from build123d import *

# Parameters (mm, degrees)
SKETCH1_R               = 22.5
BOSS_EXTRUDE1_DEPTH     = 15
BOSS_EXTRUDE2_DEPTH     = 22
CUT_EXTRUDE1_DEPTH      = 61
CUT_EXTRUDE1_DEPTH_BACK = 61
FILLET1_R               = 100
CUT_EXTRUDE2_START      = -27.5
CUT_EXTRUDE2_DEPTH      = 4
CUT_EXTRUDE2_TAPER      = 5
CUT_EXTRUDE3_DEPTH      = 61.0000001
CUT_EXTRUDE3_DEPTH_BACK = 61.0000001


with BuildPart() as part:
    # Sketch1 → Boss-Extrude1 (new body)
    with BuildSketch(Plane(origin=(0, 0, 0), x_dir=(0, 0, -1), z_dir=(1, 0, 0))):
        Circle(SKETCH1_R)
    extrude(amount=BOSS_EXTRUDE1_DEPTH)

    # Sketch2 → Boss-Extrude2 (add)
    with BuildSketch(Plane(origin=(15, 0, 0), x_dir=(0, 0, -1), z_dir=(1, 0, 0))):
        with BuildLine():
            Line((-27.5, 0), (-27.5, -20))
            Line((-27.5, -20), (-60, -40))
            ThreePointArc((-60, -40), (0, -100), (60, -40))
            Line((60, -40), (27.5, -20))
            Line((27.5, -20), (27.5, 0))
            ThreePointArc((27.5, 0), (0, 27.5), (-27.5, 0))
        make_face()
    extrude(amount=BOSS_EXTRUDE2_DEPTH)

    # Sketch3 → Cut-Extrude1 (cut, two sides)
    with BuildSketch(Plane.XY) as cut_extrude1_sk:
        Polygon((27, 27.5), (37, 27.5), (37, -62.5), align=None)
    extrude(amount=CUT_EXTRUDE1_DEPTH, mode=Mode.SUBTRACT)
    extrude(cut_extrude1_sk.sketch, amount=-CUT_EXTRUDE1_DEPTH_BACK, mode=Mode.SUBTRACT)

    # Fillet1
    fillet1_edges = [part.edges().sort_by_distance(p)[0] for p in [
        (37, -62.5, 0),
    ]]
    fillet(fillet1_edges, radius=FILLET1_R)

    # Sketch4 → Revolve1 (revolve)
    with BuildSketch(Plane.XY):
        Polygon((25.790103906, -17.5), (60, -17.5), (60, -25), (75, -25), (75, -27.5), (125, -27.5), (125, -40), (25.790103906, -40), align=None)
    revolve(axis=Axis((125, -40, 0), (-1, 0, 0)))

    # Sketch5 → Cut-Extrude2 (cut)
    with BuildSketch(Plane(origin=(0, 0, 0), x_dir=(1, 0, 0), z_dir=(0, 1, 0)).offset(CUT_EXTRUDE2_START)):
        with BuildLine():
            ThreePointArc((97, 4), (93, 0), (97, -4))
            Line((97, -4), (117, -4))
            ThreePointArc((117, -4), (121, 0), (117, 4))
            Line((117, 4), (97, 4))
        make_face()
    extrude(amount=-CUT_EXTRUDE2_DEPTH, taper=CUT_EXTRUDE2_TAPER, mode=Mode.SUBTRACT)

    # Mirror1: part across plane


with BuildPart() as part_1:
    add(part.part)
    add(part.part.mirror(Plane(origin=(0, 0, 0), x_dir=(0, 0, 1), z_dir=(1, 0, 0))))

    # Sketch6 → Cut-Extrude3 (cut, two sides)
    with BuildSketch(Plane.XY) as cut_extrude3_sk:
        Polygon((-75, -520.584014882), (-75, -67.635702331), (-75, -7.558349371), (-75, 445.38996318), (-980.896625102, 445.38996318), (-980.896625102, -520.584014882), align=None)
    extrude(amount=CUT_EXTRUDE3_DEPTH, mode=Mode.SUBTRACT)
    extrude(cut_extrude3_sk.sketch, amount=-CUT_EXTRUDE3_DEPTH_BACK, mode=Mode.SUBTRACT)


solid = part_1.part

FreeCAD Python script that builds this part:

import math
import FreeCAD as App
import Part
import Sketcher
from FreeCAD import Vector


def edges_at(feature, points):
    """Names of the edges that pass closest to the given points."""
    edges = feature.Shape.Edges
    near = lambda p: min(range(len(edges)), key=lambda i: edges[i].distToShape(Part.Vertex(*p))[0])
    return sorted({f"Edge{near(p) + 1}" for p in points})


def add_polygon(sketch, points):
    """Adds a closed chain of lines whose ends are joined by coincident constraints."""
    first, n = sketch.GeometryCount, len(points)
    for a, b in zip(points, points[1:] + points[:1]):
        sketch.addGeometry(Part.LineSegment(App.Vector(*a, 0), App.Vector(*b, 0)), False)
    for i in range(n):
        sketch.addConstraint(Sketcher.Constraint("Coincident", first + i, 2, first + (i + 1) % n, 1))

doc = App.newDocument("Part")
params = doc.addObject("Spreadsheet::Sheet", "Params")
for row, (alias, value) in enumerate([
    ("sketch1_diameter", "45 mm"),
    ("pad1_length", "15 mm"),
    ("sketch2_radius", "60 mm"),
    ("sketch2_radius2", "27.5 mm"),
    ("sketch2_width", "20 mm"),
    ("pad2_length", "22 mm"),
    ("sketch3_width", "10 mm"),
    ("sketch3_height", "90 mm"),
    ("fillet_radius", "100 mm"),
    ("sketch4_width", "50 mm"),
    ("sketch4_width2", "15 mm"),
    ("sketch4_height", "22.5 mm"),
    ("sketch4_height2", "12.5 mm"),
    ("sketch4_height3", "2.5 mm"),
    ("revolution_angle", "360 deg"),
    ("sketch5_radius", "4 mm"),
    ("sketch5_width", "20 mm"),
    ("pocket2_length", "4 mm"),
    ("pocket2_taper", "-5 deg"),
], start=1):
    params.set(f"A{row}", alias)
    params.set(f"B{row}", "=" + value)
    params.setAlias(f"B{row}", alias)

body = doc.addObject("PartDesign::Body", "Body")

# Sketch on YZ plane
sketch1 = body.newObject("Sketcher::SketchObject", "Sketch")
sketch1.AttachmentSupport = (doc.getObject("YZ_Plane"), [""])
sketch1.MapMode = "FlatFace"
sketch1.addGeometry(Part.Circle(Vector(0, 0, 0), Vector(0, 0, 1), 22.5), False)
sketch1.addConstraint(Sketcher.Constraint("Coincident", 0, 3, -1, 1))
sketch1.addConstraint(Sketcher.Constraint("Diameter", 0, 45.0))
sketch1.setExpression("Constraints[1]", "Params.sketch1_diameter")
pad1 = body.newObject("PartDesign::Pad", "Pad")
pad1.Profile = sketch1
pad1.setExpression("Length", "Params.pad1_length")

# Sketch on YZ plane
sketch2 = body.newObject("Sketcher::SketchObject", "Sketch001")
sketch2.AttachmentSupport = (doc.getObject("YZ_Plane"), [""])
sketch2.MapMode = "FlatFace"
sketch2.AttachmentOffset = App.Placement(Vector(0, 0, 15), App.Rotation())
sketch2.addGeometry(Part.LineSegment(Vector(0, 27.5, 0), Vector(-20, 27.5, 0)), False)
sketch2.addGeometry(Part.LineSegment(Vector(-20, 27.5, 0), Vector(-40, 60, 0)), False)
sketch2.addGeometry(Part.ArcOfCircle(Part.Circle(Vector(-40, 0, 0), Vector(0, 0, 1), 60), math.radians(90), math.radians(270)), False)
sketch2.addGeometry(Part.LineSegment(Vector(-40, -60, 0), Vector(-20, -27.5, 0)), False)
sketch2.addGeometry(Part.LineSegment(Vector(-20, -27.5, 0), Vector(0, -27.5, 0)), False)
sketch2.addGeometry(Part.ArcOfCircle(Part.Circle(Vector(0, 0, 0), Vector(0, 0, 1), 27.5), math.radians(-90), math.radians(90)), False)
sketch2.addConstraint(Sketcher.Constraint("Coincident", 0, 2, 1, 1))
sketch2.addConstraint(Sketcher.Constraint("Coincident", 1, 2, 2, 1))
sketch2.addConstraint(Sketcher.Constraint("Coincident", 2, 2, 3, 1))
sketch2.addConstraint(Sketcher.Constraint("Coincident", 3, 2, 4, 1))
sketch2.addConstraint(Sketcher.Constraint("Tangent", 4, 2, 5, 1))
sketch2.addConstraint(Sketcher.Constraint("Tangent", 5, 2, 0, 1))
sketch2.addConstraint(Sketcher.Constraint("Horizontal", 0))
sketch2.addConstraint(Sketcher.Constraint("Horizontal", 4))
sketch2.addConstraint(Sketcher.Constraint("Coincident", 5, 3, -1, 1))
sketch2.addConstraint(Sketcher.Constraint("Symmetric", 1, 2, 2, 2, -1))
sketch2.addConstraint(Sketcher.Constraint("Vertical", 2, 3, 1, 2))
sketch2.addConstraint(Sketcher.Constraint("Vertical", 0, 2, 3, 2))
sketch2.addConstraint(Sketcher.Constraint("Radius", 2, 60.0))
sketch2.addConstraint(Sketcher.Constraint("Radius", 5, 27.5))
sketch2.addConstraint(Sketcher.Constraint("DistanceX", 0, 2, 0, 1, 20.0))
sketch2.addConstraint(Sketcher.Constraint("DistanceX", 2, 3, -1, 1, 40.0))
sketch2.setExpression("Constraints[12]", "Params.sketch2_radius")
sketch2.setExpression("Constraints[13]", "Params.sketch2_radius2")
sketch2.setExpression("Constraints[14]", "Params.sketch2_width")
pad2 = body.newObject("PartDesign::Pad", "Pad001")
pad2.Profile = sketch2
pad2.setExpression("Length", "Params.pad2_length")

# Sketch on XY plane
sketch3 = body.newObject("Sketcher::SketchObject", "Sketch002")
sketch3.AttachmentSupport = (doc.getObject("XY_Plane"), [""])
sketch3.MapMode = "FlatFace"
add_polygon(sketch3, [(37, 27.5), (27, 27.5), (37, -62.5)])  # lines 0-2
sketch3.addConstraint(Sketcher.Constraint("Horizontal", 0))
sketch3.addConstraint(Sketcher.Constraint("Vertical", 2))
sketch3.addConstraint(Sketcher.Constraint("DistanceX", 0, 2, 0, 1, 10.0))
sketch3.addConstraint(Sketcher.Constraint("DistanceY", 2, 1, 2, 2, 90.0))
sketch3.addConstraint(Sketcher.Constraint("DistanceX", -1, 1, 0, 2, 27.0))
sketch3.addConstraint(Sketcher.Constraint("DistanceY", -1, 1, 0, 2, 27.5))
sketch3.setExpression("Constraints[5]", "Params.sketch3_width")
sketch3.setExpression("Constraints[6]", "Params.sketch3_height")
pocket1 = body.newObject("PartDesign::Pocket", "Pocket")
pocket1.Profile = sketch3
pocket1.Type = "ThroughAll"
pocket1.Midplane = True
doc.recompute()

fillet = body.newObject("PartDesign::Fillet", "Fillet")
fillet.Base = (pocket1, edges_at(pocket1, [(37, -62.5, 0)]))
fillet.setExpression("Radius", "Params.fillet_radius")

# Sketch on XY plane
sketch4 = body.newObject("Sketcher::SketchObject", "Sketch003")
sketch4.AttachmentSupport = (doc.getObject("XY_Plane"), [""])
sketch4.MapMode = "FlatFace"
add_polygon(sketch4, [(60, -17.5), (25.790104, -17.5), (25.790104, -40), (125, -40), (125, -27.5), (75, -27.5), (75, -25), (60, -25)])  # lines 0-7
sketch4.addGeometry(Part.LineSegment(Vector(125, -40, 0), Vector(25.790104, -40, 0)), True)  # axis
sketch4.addConstraint(Sketcher.Constraint("Horizontal", 0))
sketch4.addConstraint(Sketcher.Constraint("Vertical", 1))
sketch4.addConstraint(Sketcher.Constraint("Horizontal", 2))
sketch4.addConstraint(Sketcher.Constraint("Vertical", 3))
sketch4.addConstraint(Sketcher.Constraint("Horizontal", 4))
sketch4.addConstraint(Sketcher.Constraint("Vertical", 5))
sketch4.addConstraint(Sketcher.Constraint("Horizontal", 6))
sketch4.addConstraint(Sketcher.Constraint("Vertical", 7))
sketch4.addConstraint(Sketcher.Constraint("Horizontal", 8))
sketch4.addConstraint(Sketcher.Constraint("Coincident", 8, 1, 2, 2))
sketch4.addConstraint(Sketcher.Constraint("Vertical", 0, 2, 8, 2))
sketch4.addConstraint(Sketcher.Constraint("DistanceX", 4, 2, 4, 1, 50.0))
sketch4.addConstraint(Sketcher.Constraint("DistanceX", 6, 2, 6, 1, 15.0))
sketch4.addConstraint(Sketcher.Constraint("DistanceY", 1, 2, 1, 1, 22.5))
sketch4.addConstraint(Sketcher.Constraint("DistanceY", 3, 1, 3, 2, 12.5))
sketch4.addConstraint(Sketcher.Constraint("DistanceY", 5, 1, 5, 2, 2.5))
sketch4.addConstraint(Sketcher.Constraint("DistanceY", 1, 2, -1, 1, 40.0))
sketch4.addConstraint(Sketcher.Constraint("DistanceX", -1, 1, 2, 2, 125.0))
sketch4.addConstraint(Sketcher.Constraint("DistanceX", 0, 2, 0, 1, 34.209896))
sketch4.setExpression("Constraints[19]", "Params.sketch4_width")
sketch4.setExpression("Constraints[20]", "Params.sketch4_width2")
sketch4.setExpression("Constraints[21]", "Params.sketch4_height")
sketch4.setExpression("Constraints[22]", "Params.sketch4_height2")
sketch4.setExpression("Constraints[23]", "Params.sketch4_height3")
revolution = body.newObject("PartDesign::Revolution", "Revolution")
revolution.Profile = sketch4
revolution.ReferenceAxis = (sketch4, ["Axis0"])
revolution.setExpression("Angle", "Params.revolution_angle")

# Sketch on XZ plane
sketch5 = body.newObject("Sketcher::SketchObject", "Sketch004")
sketch5.AttachmentSupport = (doc.getObject("XZ_Plane"), [""])
sketch5.MapMode = "FlatFace"
sketch5.AttachmentOffset = App.Placement(Vector(0, 0, 27.5), App.Rotation())
sketch5.addGeometry(Part.ArcOfCircle(Part.Circle(Vector(97, 0, 0), Vector(0, 0, 1), 4), math.radians(90), math.radians(270)), False)
sketch5.addGeometry(Part.LineSegment(Vector(97, 4, 0), Vector(117, 4, 0)), False)
sketch5.addGeometry(Part.ArcOfCircle(Part.Circle(Vector(117, 0, 0), Vector(0, 0, 1), 4), math.radians(-90), math.radians(90)), False)
sketch5.addGeometry(Part.LineSegment(Vector(117, -4, 0), Vector(97, -4, 0)), False)
sketch5.addConstraint(Sketcher.Constraint("Tangent", 0, 1, 1, 1))
sketch5.addConstraint(Sketcher.Constraint("Tangent", 1, 2, 2, 2))
sketch5.addConstraint(Sketcher.Constraint("Tangent", 2, 1, 3, 1))
sketch5.addConstraint(Sketcher.Constraint("Tangent", 3, 2, 0, 2))
sketch5.addConstraint(Sketcher.Constraint("Horizontal", 1))
sketch5.addConstraint(Sketcher.Constraint("Horizontal", 3))
sketch5.addConstraint(Sketcher.Constraint("PointOnObject", 0, 3, -1))
sketch5.addConstraint(Sketcher.Constraint("Radius", 0, 4.0))
sketch5.addConstraint(Sketcher.Constraint("DistanceX", 1, 1, 1, 2, 20.0))
sketch5.addConstraint(Sketcher.Constraint("DistanceX", -1, 1, 0, 3, 97.0))
sketch5.setExpression("Constraints[7]", "Params.sketch5_radius")
sketch5.setExpression("Constraints[8]", "Params.sketch5_width")
pocket2 = body.newObject("PartDesign::Pocket", "Pocket001")
pocket2.Profile = sketch5
pocket2.setExpression("Length", "Params.pocket2_length")
pocket2.Reversed = True
pocket2.setExpression("TaperAngle", "Params.pocket2_taper")
body2 = doc.addObject("PartDesign::Body", "Body001")
doc.recompute()

body2.BaseFeature = body
doc.recompute()

mirroring = doc.addObject("Part::Mirroring", "Mirroring")
mirroring.Source = body
mirroring.Base = Vector(0, 0, 0)
mirroring.Normal = Vector(1, 0, 0)
body3 = doc.addObject("PartDesign::Body", "Body002")
body3.BaseFeature = mirroring
boolean = body2.newObject("PartDesign::Boolean", "Boolean")
boolean.Type = "Fuse"
boolean.addObjects([body3])
doc.recompute()

# Sketch on XY plane
sketch6 = body2.newObject("Sketcher::SketchObject", "Sketch005")
sketch6.AttachmentSupport = (doc.getObject("XY_Plane001"), [""])
sketch6.MapMode = "FlatFace"
add_polygon(sketch6, [(-75, -520.584015), (-75, 445.389963), (-980.896625, 445.389963), (-980.896625, -520.584015)])  # lines 0-3
sketch6.addConstraint(Sketcher.Constraint("Vertical", 0))
sketch6.addConstraint(Sketcher.Constraint("Horizontal", 1))
sketch6.addConstraint(Sketcher.Constraint("Vertical", 2))
sketch6.addConstraint(Sketcher.Constraint("Horizontal", 3))
sketch6.addConstraint(Sketcher.Constraint("DistanceX", 0, 2, -1, 1, 75.0))
sketch6.addConstraint(Sketcher.Constraint("DistanceY", 0, 1, 0, 2, 965.973978))
sketch6.addConstraint(Sketcher.Constraint("DistanceX", 1, 2, 1, 1, 905.896625))
sketch6.addConstraint(Sketcher.Constraint("DistanceY", -1, 1, 0, 2, 445.389963))
pocket3 = body2.newObject("PartDesign::Pocket", "Pocket002")
pocket3.Profile = sketch6
pocket3.Type = "ThroughAll"
pocket3.Midplane = True
mirroring.Visibility = False

doc.recompute()
